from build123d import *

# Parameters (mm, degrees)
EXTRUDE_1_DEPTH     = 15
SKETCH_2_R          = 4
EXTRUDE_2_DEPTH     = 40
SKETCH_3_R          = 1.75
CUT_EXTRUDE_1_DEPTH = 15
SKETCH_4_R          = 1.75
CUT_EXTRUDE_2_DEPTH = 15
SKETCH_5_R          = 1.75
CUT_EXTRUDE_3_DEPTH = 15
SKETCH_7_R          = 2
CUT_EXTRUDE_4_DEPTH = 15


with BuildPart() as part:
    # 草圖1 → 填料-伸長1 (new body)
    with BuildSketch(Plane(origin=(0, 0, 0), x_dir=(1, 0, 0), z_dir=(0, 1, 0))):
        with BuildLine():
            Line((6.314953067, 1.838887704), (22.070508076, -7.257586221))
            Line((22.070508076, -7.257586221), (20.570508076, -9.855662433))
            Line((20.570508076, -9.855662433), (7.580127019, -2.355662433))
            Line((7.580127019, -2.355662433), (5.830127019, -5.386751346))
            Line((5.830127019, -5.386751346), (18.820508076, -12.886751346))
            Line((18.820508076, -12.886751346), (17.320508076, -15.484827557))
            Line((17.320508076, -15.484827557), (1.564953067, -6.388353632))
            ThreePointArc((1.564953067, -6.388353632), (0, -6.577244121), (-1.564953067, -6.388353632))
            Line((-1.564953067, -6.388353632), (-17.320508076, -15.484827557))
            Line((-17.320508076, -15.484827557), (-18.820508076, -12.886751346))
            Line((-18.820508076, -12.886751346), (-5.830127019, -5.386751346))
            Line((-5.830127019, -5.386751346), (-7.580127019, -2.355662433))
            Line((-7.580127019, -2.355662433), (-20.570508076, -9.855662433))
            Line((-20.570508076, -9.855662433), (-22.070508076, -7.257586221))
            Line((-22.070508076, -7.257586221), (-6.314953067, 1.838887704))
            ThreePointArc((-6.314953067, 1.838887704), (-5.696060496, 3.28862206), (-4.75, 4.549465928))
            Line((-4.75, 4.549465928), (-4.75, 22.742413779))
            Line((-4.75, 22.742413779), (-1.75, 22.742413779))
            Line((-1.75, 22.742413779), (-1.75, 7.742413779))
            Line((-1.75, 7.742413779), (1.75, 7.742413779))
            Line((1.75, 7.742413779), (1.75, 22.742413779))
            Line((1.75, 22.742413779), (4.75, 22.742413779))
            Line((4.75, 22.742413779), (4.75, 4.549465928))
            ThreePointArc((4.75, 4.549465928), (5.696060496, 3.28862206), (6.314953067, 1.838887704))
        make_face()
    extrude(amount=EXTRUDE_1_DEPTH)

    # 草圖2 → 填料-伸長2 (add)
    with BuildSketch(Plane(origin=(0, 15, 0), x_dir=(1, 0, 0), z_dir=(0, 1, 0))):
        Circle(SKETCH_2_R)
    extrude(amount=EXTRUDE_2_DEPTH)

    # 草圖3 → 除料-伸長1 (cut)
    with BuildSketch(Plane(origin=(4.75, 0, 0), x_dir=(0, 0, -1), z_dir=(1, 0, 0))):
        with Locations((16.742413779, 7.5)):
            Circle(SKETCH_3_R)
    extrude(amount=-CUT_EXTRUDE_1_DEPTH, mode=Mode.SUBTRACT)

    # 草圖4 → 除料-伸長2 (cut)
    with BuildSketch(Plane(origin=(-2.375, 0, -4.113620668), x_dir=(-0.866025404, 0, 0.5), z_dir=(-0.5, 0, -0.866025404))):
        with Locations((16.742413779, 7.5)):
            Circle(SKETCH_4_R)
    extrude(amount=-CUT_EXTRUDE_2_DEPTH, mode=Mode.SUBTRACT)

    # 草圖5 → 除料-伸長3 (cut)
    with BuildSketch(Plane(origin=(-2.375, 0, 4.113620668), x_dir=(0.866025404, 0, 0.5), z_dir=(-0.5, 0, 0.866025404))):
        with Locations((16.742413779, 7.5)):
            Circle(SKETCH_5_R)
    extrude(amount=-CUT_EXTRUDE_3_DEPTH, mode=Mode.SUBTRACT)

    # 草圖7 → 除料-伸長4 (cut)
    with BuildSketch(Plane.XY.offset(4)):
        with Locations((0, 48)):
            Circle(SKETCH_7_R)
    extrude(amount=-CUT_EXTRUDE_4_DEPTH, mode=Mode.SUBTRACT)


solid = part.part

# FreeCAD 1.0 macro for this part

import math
import FreeCAD as App
import Part
import Sketcher
from FreeCAD import Vector
Q = App.Units.Quantity

doc = App.newDocument("Part")
body = doc.addObject("PartDesign::Body", "Body")

sketch1 = body.newObject("Sketcher::SketchObject", "Sketch")
sketch1.AttachmentSupport = (doc.getObject("XZ_Plane"), [""])
sketch1.MapMode = "FlatFace"
sketch1.addGeometry([
    Part.LineSegment(Vector(22.1, 7.3, 0), Vector(6.3, -1.8, 0)),
    Part.ArcOfCircle(Part.Circle(Vector(0, 0, 0), Vector(0, 0, 1), 6.6), math.radians(-44), math.radians(-16)),
    Part.LineSegment(Vector(4.8, -4.5, 0), Vector(4.8, -22.7, 0)),
    Part.LineSegment(Vector(4.8, -22.7, 0), Vector(1.8, -22.7, 0)),
    Part.LineSegment(Vector(1.8, -22.7, 0), Vector(1.8, -7.7, 0)),
    Part.LineSegment(Vector(1.8, -7.7, 0), Vector(-1.8, -7.7, 0)),
    Part.LineSegment(Vector(-1.8, -7.7, 0), Vector(-1.8, -22.7, 0)),
    Part.LineSegment(Vector(-1.8, -22.7, 0), Vector(-4.8, -22.7, 0)),
    Part.LineSegment(Vector(-4.8, -22.7, 0), Vector(-4.8, -4.5, 0)),
    Part.ArcOfCircle(Part.Circle(Vector(0, 0, 0), Vector(0, 0, 1), 6.6), math.radians(-164), math.radians(-136)),
    Part.LineSegment(Vector(-6.3, -1.8, 0), Vector(-22.1, 7.3, 0)),
    Part.LineSegment(Vector(-22.1, 7.3, 0), Vector(-20.6, 9.9, 0)),
    Part.LineSegment(Vector(-20.6, 9.9, 0), Vector(-7.6, 2.4, 0)),
    Part.LineSegment(Vector(-7.6, 2.4, 0), Vector(-5.8, 5.4, 0)),
    Part.LineSegment(Vector(-5.8, 5.4, 0), Vector(-18.8, 12.9, 0)),
    Part.LineSegment(Vector(-18.8, 12.9, 0), Vector(-17.3, 15.5, 0)),
    Part.LineSegment(Vector(-17.3, 15.5, 0), Vector(-1.6, 6.4, 0)),
    Part.ArcOfCircle(Part.Circle(Vector(0, 0, 0), Vector(0, 0, 1), 6.6), math.radians(76), math.radians(104)),
    Part.LineSegment(Vector(1.6, 6.4, 0), Vector(17.3, 15.5, 0)),
    Part.LineSegment(Vector(17.3, 15.5, 0), Vector(18.8, 12.9, 0)),
    Part.LineSegment(Vector(18.8, 12.9, 0), Vector(5.8, 5.4, 0)),
    Part.LineSegment(Vector(5.8, 5.4, 0), Vector(7.6, 2.4, 0)),
    Part.LineSegment(Vector(7.6, 2.4, 0), Vector(20.6, 9.9, 0)),
    Part.LineSegment(Vector(20.6, 9.9, 0), Vector(22.1, 7.3, 0)),
], False)
sketch1.addConstraint([
    Sketcher.Constraint("Coincident", 0, 2, 1, 2),
    Sketcher.Constraint("Coincident", 1, 1, 2, 1),
    Sketcher.Constraint("Coincident", 2, 2, 3, 1),
    Sketcher.Constraint("Coincident", 3, 2, 4, 1),
    Sketcher.Constraint("Coincident", 4, 2, 5, 1),
    Sketcher.Constraint("Coincident", 5, 2, 6, 1),
    Sketcher.Constraint("Coincident", 6, 2, 7, 1),
    Sketcher.Constraint("Coincident", 7, 2, 8, 1),
    Sketcher.Constraint("Coincident", 8, 2, 9, 2),
    Sketcher.Constraint("Coincident", 9, 1, 10, 1),
    Sketcher.Constraint("Coincident", 10, 2, 11, 1),
    Sketcher.Constraint("Coincident", 11, 2, 12, 1),
    Sketcher.Constraint("Coincident", 12, 2, 13, 1),
    Sketcher.Constraint("Coincident", 13, 2, 14, 1),
    Sketcher.Constraint("Coincident", 14, 2, 15, 1),
    Sketcher.Constraint("Coincident", 15, 2, 16, 1),
    Sketcher.Constraint("Coincident", 16, 2, 17, 2),
    Sketcher.Constraint("Coincident", 17, 1, 18, 1),
    Sketcher.Constraint("Coincident", 18, 2, 19, 1),
    Sketcher.Constraint("Coincident", 19, 2, 20, 1),
    Sketcher.Constraint("Coincident", 20, 2, 21, 1),
    Sketcher.Constraint("Coincident", 21, 2, 22, 1),
    Sketcher.Constraint("Coincident", 22, 2, 23, 1),
    Sketcher.Constraint("Coincident", 23, 2, 0, 1),
    Sketcher.Constraint("Vertical", 2),
    Sketcher.Constraint("Horizontal", 3),
    Sketcher.Constraint("Vertical", 4),
    Sketcher.Constraint("Horizontal", 5),
    Sketcher.Constraint("Vertical", 6),
    Sketcher.Constraint("Horizontal", 7),
    Sketcher.Constraint("Vertical", 8),
    Sketcher.Constraint("Coincident", 1, 3, -1, 1),
    Sketcher.Constraint("Coincident", 9, 3, -1, 1),
    Sketcher.Constraint("Coincident", 17, 3, -1, 1),
    Sketcher.Constraint("Equal", 1, 9),
    Sketcher.Constraint("Equal", 9, 17),
    Sketcher.Constraint("Symmetric", 3, 2, 6, 2, -2),
    Sketcher.Constraint("Symmetric", 15, 2, 18, 2, -2),
    Sketcher.Constraint("Symmetric", 14, 2, 19, 2, -2),
    Sketcher.Constraint("Symmetric", 13, 2, 20, 2, -2),
    Sketcher.Constraint("Symmetric", 12, 2, 21, 2, -2),
    Sketcher.Constraint("Symmetric", 11, 2, 22, 2, -2),
    Sketcher.Constraint("Symmetric", 10, 2, 23, 2, -2),
    Sketcher.Constraint("Perpendicular", 10, 11),
    Sketcher.Constraint("Perpendicular", 11, 12),
    Sketcher.Constraint("Perpendicular", 12, 13),
    Sketcher.Constraint("Perpendicular", 13, 14),
    Sketcher.Constraint("Perpendicular", 14, 15),
    Sketcher.Constraint("Perpendicular", 15, 16),
    Sketcher.Constraint("Parallel", 0, 18),
    Sketcher.Constraint("Perpendicular", 18, 19),
    Sketcher.Constraint("Horizontal", 1, 1, 8, 2),
    Sketcher.Constraint("Equal", 12, 14),
    Sketcher.Constraint("Equal", 11, 15),
    Sketcher.Constraint("Equal", 10, 16),
    Sketcher.Constraint("DistanceX", 3, 2, 3, 1, 3.0),
    Sketcher.Constraint("DistanceY", 4, 1, 4, 2, 15.0),
    Sketcher.Constraint("Angle", 0, Q("-150 deg")),
    Sketcher.Constraint("Distance", 11, 3.0),
    Sketcher.Constraint("Distance", 12, 15.0),
    Sketcher.Constraint("DistanceX", 5, 2, 5, 1, 3.5),
    Sketcher.Constraint("Distance", 13, 3.5),
    Sketcher.Constraint("Radius", 1, 6.577244),
    Sketcher.Constraint("DistanceY", 2, 2, 2, 1, 18.192948),
    Sketcher.Constraint("DistanceX", 10, 2, -1, 1, 22.070508),
])
pad1 = body.newObject("PartDesign::Pad", "Pad")
pad1.Profile = sketch1
pad1.Length = 15
pad1.Reversed = True

sketch2 = body.newObject("Sketcher::SketchObject", "Sketch001")
sketch2.AttachmentSupport = (doc.getObject("XZ_Plane"), [""])
sketch2.MapMode = "FlatFace"
sketch2.AttachmentOffset = App.Placement(Vector(0, 0, -15), App.Rotation())
sketch2.addGeometry(Part.Circle(Vector(0, 0, 0), Vector(0, 0, 1), 4), False)
sketch2.addConstraint([
    Sketcher.Constraint("Coincident", 0, 3, -1, 1),
    Sketcher.Constraint("Diameter", 0, 8.0),
])
pad2 = body.newObject("PartDesign::Pad", "Pad001")
pad2.Profile = sketch2
pad2.Length = 40
pad2.Reversed = True

sketch3 = body.newObject("Sketcher::SketchObject", "Sketch002")
sketch3.AttachmentSupport = (doc.getObject("YZ_Plane"), [""])
sketch3.MapMode = "FlatFace"
sketch3.AttachmentOffset = App.Placement(Vector(0, 0, 4.75), App.Rotation())
sketch3.addGeometry(Part.Circle(Vector(7.5, -16.7, 0), Vector(0, 0, 1), 1.8), False)
sketch3.addConstraint([
    Sketcher.Constraint("Diameter", 0, 3.5),
    Sketcher.Constraint("DistanceX", -1, 1, 0, 3, 7.5),
    Sketcher.Constraint("DistanceY", 0, 3, -1, 1, 16.742414),
])
pocket1 = body.newObject("PartDesign::Pocket", "Pocket")
pocket1.Profile = sketch3
pocket1.Length = 15

sketch4 = body.newObject("Sketcher::SketchObject", "Sketch003")
sketch4.Placement = App.Placement(Vector(-2.375, 0, -4.113621), App.Rotation(Vector(-0.866025404, 0, 0.5), Vector(0, 1, 0), Vector(-0.5, 0, -0.866025404), "ZXY"))
sketch4.addGeometry(Part.Circle(Vector(16.7, 7.5, 0), Vector(0, 0, 1), 1.8), False)
sketch4.addConstraint([
    Sketcher.Constraint("Diameter", 0, 3.5),
    Sketcher.Constraint("DistanceY", -1, 1, 0, 3, 7.5),
    Sketcher.Constraint("DistanceX", -1, 1, 0, 3, 16.742414),
])
pocket2 = body.newObject("PartDesign::Pocket", "Pocket001")
pocket2.Profile = sketch4
pocket2.Length = 15

sketch5 = body.newObject("Sketcher::SketchObject", "Sketch004")
sketch5.Placement = App.Placement(Vector(-2.375, 0, 4.113621), App.Rotation(Vector(0.866025404, 0, 0.5), Vector(0, 1, 0), Vector(-0.5, 0, 0.866025404), "ZXY"))
sketch5.addGeometry(Part.Circle(Vector(16.7, 7.5, 0), Vector(0, 0, 1), 1.8), False)
sketch5.addConstraint([
    Sketcher.Constraint("Diameter", 0, 3.5),
    Sketcher.Constraint("DistanceY", -1, 1, 0, 3, 7.5),
    Sketcher.Constraint("DistanceX", -1, 1, 0, 3, 16.742414),
])
pocket3 = body.newObject("PartDesign::Pocket", "Pocket002")
pocket3.Profile = sketch5
pocket3.Length = 15

sketch6 = body.newObject("Sketcher::SketchObject", "Sketch005")
sketch6.AttachmentSupport = (doc.getObject("XY_Plane"), [""])
sketch6.MapMode = "FlatFace"
sketch6.AttachmentOffset = App.Placement(Vector(0, 0, 4), App.Rotation())
sketch6.addGeometry(Part.Circle(Vector(0, 48, 0), Vector(0, 0, 1), 2), False)
sketch6.addConstraint([
    Sketcher.Constraint("PointOnObject", 0, 3, -2),
    Sketcher.Constraint("Diameter", 0, 4.0),
    Sketcher.Constraint("DistanceY", -1, 1, 0, 3, 48.0),
])
pocket4 = body.newObject("PartDesign::Pocket", "Pocket003")
pocket4.Profile = sketch6
pocket4.Length = 15

doc.recompute()
